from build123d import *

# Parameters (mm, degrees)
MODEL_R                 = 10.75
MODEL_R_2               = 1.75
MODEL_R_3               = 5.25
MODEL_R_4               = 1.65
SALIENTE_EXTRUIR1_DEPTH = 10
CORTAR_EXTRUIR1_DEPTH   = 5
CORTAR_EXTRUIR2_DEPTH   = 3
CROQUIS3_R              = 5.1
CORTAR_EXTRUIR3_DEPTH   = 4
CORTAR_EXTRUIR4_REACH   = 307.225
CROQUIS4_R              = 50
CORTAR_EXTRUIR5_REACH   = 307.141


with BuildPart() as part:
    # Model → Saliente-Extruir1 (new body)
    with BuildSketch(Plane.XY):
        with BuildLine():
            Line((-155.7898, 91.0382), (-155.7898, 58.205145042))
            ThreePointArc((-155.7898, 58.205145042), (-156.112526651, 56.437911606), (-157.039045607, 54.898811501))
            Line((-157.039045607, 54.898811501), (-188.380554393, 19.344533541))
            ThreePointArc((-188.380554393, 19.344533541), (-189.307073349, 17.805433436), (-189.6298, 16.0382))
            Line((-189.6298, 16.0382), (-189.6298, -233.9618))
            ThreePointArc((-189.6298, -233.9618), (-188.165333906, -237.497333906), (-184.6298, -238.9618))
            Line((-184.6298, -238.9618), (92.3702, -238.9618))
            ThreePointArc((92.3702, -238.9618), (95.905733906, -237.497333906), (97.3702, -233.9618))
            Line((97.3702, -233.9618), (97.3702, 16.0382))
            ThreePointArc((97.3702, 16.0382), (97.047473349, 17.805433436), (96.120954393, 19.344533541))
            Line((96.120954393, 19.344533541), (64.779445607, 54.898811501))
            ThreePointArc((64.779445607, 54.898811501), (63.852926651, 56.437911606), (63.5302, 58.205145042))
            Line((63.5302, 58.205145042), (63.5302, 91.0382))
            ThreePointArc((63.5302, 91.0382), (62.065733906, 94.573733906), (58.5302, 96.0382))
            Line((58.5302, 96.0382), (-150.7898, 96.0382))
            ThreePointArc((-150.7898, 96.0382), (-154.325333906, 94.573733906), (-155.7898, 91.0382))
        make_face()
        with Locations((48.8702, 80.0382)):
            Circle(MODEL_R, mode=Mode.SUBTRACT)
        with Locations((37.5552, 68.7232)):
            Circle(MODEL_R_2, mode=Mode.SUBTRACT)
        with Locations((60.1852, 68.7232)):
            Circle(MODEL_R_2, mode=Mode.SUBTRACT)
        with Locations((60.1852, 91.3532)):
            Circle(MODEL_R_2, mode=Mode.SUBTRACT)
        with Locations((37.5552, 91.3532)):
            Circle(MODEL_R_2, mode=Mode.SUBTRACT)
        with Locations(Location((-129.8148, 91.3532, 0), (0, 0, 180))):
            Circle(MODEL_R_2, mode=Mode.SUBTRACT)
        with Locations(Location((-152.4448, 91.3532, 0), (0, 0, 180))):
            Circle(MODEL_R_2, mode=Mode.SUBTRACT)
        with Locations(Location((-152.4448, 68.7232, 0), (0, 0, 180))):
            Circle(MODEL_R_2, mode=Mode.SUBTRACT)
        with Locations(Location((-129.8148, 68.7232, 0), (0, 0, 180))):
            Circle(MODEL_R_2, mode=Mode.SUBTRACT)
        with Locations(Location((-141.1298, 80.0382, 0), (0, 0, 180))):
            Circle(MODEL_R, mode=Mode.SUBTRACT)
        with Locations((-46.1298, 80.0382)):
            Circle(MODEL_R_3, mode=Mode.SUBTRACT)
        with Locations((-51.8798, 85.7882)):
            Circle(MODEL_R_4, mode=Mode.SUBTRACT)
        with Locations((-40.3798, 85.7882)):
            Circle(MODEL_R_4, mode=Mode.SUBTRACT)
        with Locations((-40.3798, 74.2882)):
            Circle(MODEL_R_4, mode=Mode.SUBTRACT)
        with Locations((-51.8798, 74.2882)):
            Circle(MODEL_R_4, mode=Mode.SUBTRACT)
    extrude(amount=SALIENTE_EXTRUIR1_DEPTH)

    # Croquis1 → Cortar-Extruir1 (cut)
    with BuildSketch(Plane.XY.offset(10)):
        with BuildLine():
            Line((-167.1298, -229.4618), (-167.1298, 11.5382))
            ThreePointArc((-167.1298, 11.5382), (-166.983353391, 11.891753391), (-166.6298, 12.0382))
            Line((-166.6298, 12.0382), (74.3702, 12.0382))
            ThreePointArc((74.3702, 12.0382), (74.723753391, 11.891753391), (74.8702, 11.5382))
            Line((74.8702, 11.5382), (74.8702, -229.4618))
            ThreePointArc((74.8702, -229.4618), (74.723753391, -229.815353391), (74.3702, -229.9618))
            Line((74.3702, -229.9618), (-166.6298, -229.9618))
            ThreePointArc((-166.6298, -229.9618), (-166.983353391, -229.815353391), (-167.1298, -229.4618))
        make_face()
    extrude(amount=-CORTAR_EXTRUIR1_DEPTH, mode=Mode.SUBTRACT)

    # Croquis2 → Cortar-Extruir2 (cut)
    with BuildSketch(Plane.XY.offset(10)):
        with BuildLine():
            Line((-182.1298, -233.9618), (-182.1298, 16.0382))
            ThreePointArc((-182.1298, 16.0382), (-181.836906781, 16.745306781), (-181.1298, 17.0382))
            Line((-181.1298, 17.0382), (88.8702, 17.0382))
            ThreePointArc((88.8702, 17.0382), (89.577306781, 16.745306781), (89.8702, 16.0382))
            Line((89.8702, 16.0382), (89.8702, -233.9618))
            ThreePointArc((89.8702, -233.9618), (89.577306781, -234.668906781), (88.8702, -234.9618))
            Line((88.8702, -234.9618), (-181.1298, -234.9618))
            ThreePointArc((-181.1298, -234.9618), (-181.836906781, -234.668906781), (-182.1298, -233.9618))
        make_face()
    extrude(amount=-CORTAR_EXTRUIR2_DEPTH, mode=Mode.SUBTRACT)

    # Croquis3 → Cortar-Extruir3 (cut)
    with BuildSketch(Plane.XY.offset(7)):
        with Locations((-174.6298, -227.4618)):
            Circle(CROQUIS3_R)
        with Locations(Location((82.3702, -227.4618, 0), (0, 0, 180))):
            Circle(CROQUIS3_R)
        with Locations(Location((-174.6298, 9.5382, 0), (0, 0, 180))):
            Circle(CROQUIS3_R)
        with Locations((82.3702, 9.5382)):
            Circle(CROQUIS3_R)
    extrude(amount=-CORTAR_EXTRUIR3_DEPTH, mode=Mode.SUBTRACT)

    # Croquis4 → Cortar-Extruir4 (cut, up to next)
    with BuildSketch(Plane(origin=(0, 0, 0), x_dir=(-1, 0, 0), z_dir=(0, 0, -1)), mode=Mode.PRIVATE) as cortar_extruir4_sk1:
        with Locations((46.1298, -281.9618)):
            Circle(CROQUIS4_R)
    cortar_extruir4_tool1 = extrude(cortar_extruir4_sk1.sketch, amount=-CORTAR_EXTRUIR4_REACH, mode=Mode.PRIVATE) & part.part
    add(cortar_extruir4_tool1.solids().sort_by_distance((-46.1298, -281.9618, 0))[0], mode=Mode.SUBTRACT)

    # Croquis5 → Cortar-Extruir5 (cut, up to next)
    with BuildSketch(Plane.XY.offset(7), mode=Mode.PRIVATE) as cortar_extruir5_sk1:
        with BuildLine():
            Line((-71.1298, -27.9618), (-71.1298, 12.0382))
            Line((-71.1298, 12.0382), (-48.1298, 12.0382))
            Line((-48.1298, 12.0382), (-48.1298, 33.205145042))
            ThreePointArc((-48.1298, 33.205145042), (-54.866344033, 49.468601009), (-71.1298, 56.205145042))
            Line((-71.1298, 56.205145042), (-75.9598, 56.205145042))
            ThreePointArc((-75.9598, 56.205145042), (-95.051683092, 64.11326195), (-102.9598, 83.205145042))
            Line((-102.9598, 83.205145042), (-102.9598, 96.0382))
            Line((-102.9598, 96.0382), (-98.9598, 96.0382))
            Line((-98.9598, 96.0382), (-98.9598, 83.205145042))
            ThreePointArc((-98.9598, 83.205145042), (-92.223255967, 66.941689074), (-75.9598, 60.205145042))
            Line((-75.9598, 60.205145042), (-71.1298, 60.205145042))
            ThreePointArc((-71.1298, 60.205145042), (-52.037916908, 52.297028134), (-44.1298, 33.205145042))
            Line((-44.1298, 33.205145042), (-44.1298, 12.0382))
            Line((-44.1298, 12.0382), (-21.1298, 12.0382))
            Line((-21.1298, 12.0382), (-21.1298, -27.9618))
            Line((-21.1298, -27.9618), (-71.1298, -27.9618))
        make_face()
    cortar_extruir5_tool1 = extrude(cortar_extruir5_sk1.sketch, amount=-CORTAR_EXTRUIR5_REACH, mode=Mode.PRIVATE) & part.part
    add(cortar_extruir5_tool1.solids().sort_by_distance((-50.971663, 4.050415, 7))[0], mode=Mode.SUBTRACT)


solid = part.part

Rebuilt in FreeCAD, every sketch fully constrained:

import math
import FreeCAD as App
import Part
import Sketcher
from FreeCAD import Vector

doc = App.newDocument("Part")
body = doc.addObject("PartDesign::Body", "Body")

# Sketch on XY plane
sketch1 = doc.addObject("Sketcher::SketchObject", "Sketch")
body.addObject(sketch1)
sketch1.AttachmentSupport = (doc.XY_Plane, [""])
sketch1.MapMode = "FlatFace"
sketch1.addGeometry([
    Part.LineSegment(Vector(-155.7898, 91.0382, 0), Vector(-155.7898, 58.205145, 0)),  # 0
    Part.ArcOfCircle(Part.Circle(Vector(-160.7898, 58.205145, 0), Vector(0, 0, 1), 5), math.radians(-41.396551), math.radians(0)),  # 1
    Part.LineSegment(Vector(-157.039046, 54.898812, 0), Vector(-188.380554, 19.344534, 0)),  # 2
    Part.ArcOfCircle(Part.Circle(Vector(-184.6298, 16.0382, 0), Vector(0, 0, 1), 5), math.radians(138.603449), math.radians(180)),  # 3
    Part.LineSegment(Vector(-189.6298, 16.0382, 0), Vector(-189.6298, -233.9618, 0)),  # 4
    Part.ArcOfCircle(Part.Circle(Vector(-184.6298, -233.9618, 0), Vector(0, 0, 1), 5), math.radians(180), math.radians(270)),  # 5
    Part.LineSegment(Vector(-184.6298, -238.9618, 0), Vector(92.3702, -238.9618, 0)),  # 6
    Part.ArcOfCircle(Part.Circle(Vector(92.3702, -233.9618, 0), Vector(0, 0, 1), 5), math.radians(-90), math.radians(0)),  # 7
    Part.LineSegment(Vector(97.3702, -233.9618, 0), Vector(97.3702, 16.0382, 0)),  # 8
    Part.ArcOfCircle(Part.Circle(Vector(92.3702, 16.0382, 0), Vector(0, 0, 1), 5), math.radians(0), math.radians(41.396551)),  # 9
    Part.LineSegment(Vector(96.120954, 19.344534, 0), Vector(64.779446, 54.898812, 0)),  # 10
    Part.ArcOfCircle(Part.Circle(Vector(68.5302, 58.205145, 0), Vector(0, 0, 1), 5), math.radians(-180), math.radians(-138.603449)),  # 11
    Part.LineSegment(Vector(63.5302, 58.205145, 0), Vector(63.5302, 91.0382, 0)),  # 12
    Part.ArcOfCircle(Part.Circle(Vector(58.5302, 91.0382, 0), Vector(0, 0, 1), 5), math.radians(0), math.radians(90)),  # 13
    Part.LineSegment(Vector(58.5302, 96.0382, 0), Vector(-150.7898, 96.0382, 0)),  # 14
    Part.ArcOfCircle(Part.Circle(Vector(-150.7898, 91.0382, 0), Vector(0, 0, 1), 5), math.radians(90), math.radians(180)),  # 15
    Part.Circle(Vector(-152.4448, 68.7232, 0), Vector(0, 0, 1), 1.75),  # 16
    Part.Circle(Vector(-129.8148, 68.7232, 0), Vector(0, 0, 1), 1.75),  # 17
    Part.Circle(Vector(-141.1298, 80.0382, 0), Vector(0, 0, 1), 10.75),  # 18
    Part.Circle(Vector(-51.8798, 74.2882, 0), Vector(0, 0, 1), 1.65),  # 19
    Part.Circle(Vector(-46.1298, 80.0382, 0), Vector(0, 0, 1), 5.25),  # 20
    Part.Circle(Vector(37.5552, 68.7232, 0), Vector(0, 0, 1), 1.75),  # 21
    Part.Circle(Vector(60.1852, 68.7232, 0), Vector(0, 0, 1), 1.75),  # 22
    Part.Circle(Vector(-40.3798, 74.2882, 0), Vector(0, 0, 1), 1.65),  # 23
    Part.Circle(Vector(48.8702, 80.0382, 0), Vector(0, 0, 1), 10.75),  # 24
    Part.Circle(Vector(-51.8798, 85.7882, 0), Vector(0, 0, 1), 1.65),  # 25
    Part.Circle(Vector(-152.4448, 91.3532, 0), Vector(0, 0, 1), 1.75),  # 26
    Part.Circle(Vector(-129.8148, 91.3532, 0), Vector(0, 0, 1), 1.75),  # 27
    Part.Circle(Vector(-40.3798, 85.7882, 0), Vector(0, 0, 1), 1.65),  # 28
    Part.Circle(Vector(37.5552, 91.3532, 0), Vector(0, 0, 1), 1.75),  # 29
    Part.Circle(Vector(60.1852, 91.3532, 0), Vector(0, 0, 1), 1.75),  # 30
], False)
sketch1.addConstraint([
    Sketcher.Constraint("Tangent", 0, 2, 1, 2),
    Sketcher.Constraint("Tangent", 1, 1, 2, 1),
    Sketcher.Constraint("Tangent", 2, 2, 3, 1),
    Sketcher.Constraint("Tangent", 3, 2, 4, 1),
    Sketcher.Constraint("Tangent", 4, 2, 5, 1),
    Sketcher.Constraint("Tangent", 5, 2, 6, 1),
    Sketcher.Constraint("Tangent", 6, 2, 7, 1),
    Sketcher.Constraint("Tangent", 7, 2, 8, 1),
    Sketcher.Constraint("Tangent", 8, 2, 9, 1),
    Sketcher.Constraint("Tangent", 9, 2, 10, 1),
    Sketcher.Constraint("Tangent", 10, 2, 11, 2),
    Sketcher.Constraint("Tangent", 11, 1, 12, 1),
    Sketcher.Constraint("Tangent", 12, 2, 13, 1),
    Sketcher.Constraint("Tangent", 13, 2, 14, 1),
    Sketcher.Constraint("Tangent", 14, 2, 15, 1),
    Sketcher.Constraint("Tangent", 15, 2, 0, 1),
    Sketcher.Constraint("Vertical", 0),
    Sketcher.Constraint("Vertical", 4),
    Sketcher.Constraint("Horizontal", 6),
    Sketcher.Constraint("Vertical", 8),
    Sketcher.Constraint("Vertical", 12),
    Sketcher.Constraint("Horizontal", 14),
    Sketcher.Constraint("Equal", 1, 3),
    Sketcher.Constraint("Equal", 3, 5),
    Sketcher.Constraint("Equal", 5, 7),
    Sketcher.Constraint("Equal", 7, 9),
    Sketcher.Constraint("Equal", 9, 11),
    Sketcher.Constraint("Equal", 11, 13),
    Sketcher.Constraint("Equal", 13, 15),
    Sketcher.Constraint("Equal", 16, 17),
    Sketcher.Constraint("Equal", 17, 21),
    Sketcher.Constraint("Equal", 21, 22),
    Sketcher.Constraint("Equal", 19, 23),
    Sketcher.Constraint("Equal", 18, 24),
    Sketcher.Constraint("Equal", 23, 25),
    Sketcher.Constraint("Equal", 22, 26),
    Sketcher.Constraint("Equal", 26, 27),
    Sketcher.Constraint("Equal", 25, 28),
    Sketcher.Constraint("Equal", 27, 29),
    Sketcher.Constraint("Equal", 29, 30),
    Sketcher.Constraint("Horizontal", 3, 3, 9, 3),
    Sketcher.Constraint("Horizontal", 1, 3, 11, 3),
    Sketcher.Constraint("Horizontal", 16, 3, 17, 3),
    Sketcher.Constraint("Horizontal", 18, 3, 20, 3),
    Sketcher.Constraint("Horizontal", 17, 3, 21, 3),
    Sketcher.Constraint("Horizontal", 21, 3, 22, 3),
    Sketcher.Constraint("Horizontal", 19, 3, 23, 3),
    Sketcher.Constraint("Horizontal", 20, 3, 24, 3),
    Sketcher.Constraint("Horizontal", 26, 3, 27, 3),
    Sketcher.Constraint("Horizontal", 25, 3, 28, 3),
    Sketcher.Constraint("Horizontal", 27, 3, 29, 3),
    Sketcher.Constraint("Horizontal", 29, 3, 30, 3),
    Sketcher.Constraint("Horizontal", 2, 2, 9, 2),
    Sketcher.Constraint("Vertical", 19, 3, 25, 3),
    Sketcher.Constraint("Vertical", 16, 3, 26, 3),
    Sketcher.Constraint("Vertical", 17, 3, 27, 3),
    Sketcher.Constraint("Vertical", 23, 3, 28, 3),
    Sketcher.Constraint("Vertical", 21, 3, 29, 3),
    Sketcher.Constraint("Vertical", 22, 3, 30, 3),
    Sketcher.Constraint("Radius", 1, 5.0),
    Sketcher.Constraint("Diameter", 16, 3.5),
    Sketcher.Constraint("Diameter", 18, 21.5),
    Sketcher.Constraint("Diameter", 19, 3.3),
    Sketcher.Constraint("Diameter", 20, 10.5),
    Sketcher.Constraint("DistanceX", 6, 1, 6, 2, 277.0),
    Sketcher.Constraint("DistanceY", 4, 2, 4, 1, 250.0),
    Sketcher.Constraint("DistanceY", 9, 3, 13, 3, 75.0),
    Sketcher.Constraint("DistanceY", 18, 3, 15, 3, 11.0),
    Sketcher.Constraint("DistanceX", 18, 3, 20, 3, 95.0),
    Sketcher.Constraint("DistanceX", 14, 2, 14, 1, 209.32),
    Sketcher.Constraint("DistanceX", 3, 3, 18, 3, 43.5),
    Sketcher.Constraint("DistanceX", 19, 3, 23, 3, 11.5),
    Sketcher.Constraint("DistanceX", 24, 3, 9, 3, 43.5),
    Sketcher.Constraint("DistanceY", 19, 3, 25, 3, 11.5),
    Sketcher.Constraint("DistanceX", 16, 3, 17, 3, 22.63),
    Sketcher.Constraint("DistanceX", 18, 3, 19, 3, 89.25),
    Sketcher.Constraint("DistanceY", 19, 3, 18, 3, 5.75),
    Sketcher.Constraint("DistanceX", 21, 3, 22, 3, 22.63),
    Sketcher.Constraint("DistanceY", 16, 3, 26, 3, 22.63),
    Sketcher.Constraint("DistanceX", 1, 3, 16, 3, 8.345),
    Sketcher.Constraint("DistanceY", 16, 3, 15, 3, 22.315),
    Sketcher.Constraint("DistanceX", 21, 3, 13, 3, 20.975),
    Sketcher.Constraint("DistanceX", 1, 3, -1, 1, 160.7898),
    Sketcher.Constraint("DistanceY", -1, 1, 3, 3, 16.0382),
    Sketcher.Constraint("Distance", 2, 47.396169),
])
pad1 = doc.addObject("PartDesign::Pad", "Pad")
body.addObject(pad1)
pad1.Profile = sketch1
pad1.Length = 10

# Sketch on XY plane
sketch2 = doc.addObject("Sketcher::SketchObject", "Sketch001")
body.addObject(sketch2)
sketch2.AttachmentSupport = (doc.XY_Plane, [""])
sketch2.MapMode = "FlatFace"
sketch2.AttachmentOffset = App.Placement(Vector(0, 0, 10), App.Rotation())
sketch2.addGeometry([
    Part.LineSegment(Vector(-167.1298, 11.5382, 0), Vector(-167.1298, -229.4618, 0)),  # 0
    Part.ArcOfCircle(Part.Circle(Vector(-166.6298, -229.4618, 0), Vector(0, 0, 1), 0.5), math.radians(180), math.radians(270)),  # 1
    Part.LineSegment(Vector(-166.6298, -229.9618, 0), Vector(74.3702, -229.9618, 0)),  # 2
    Part.ArcOfCircle(Part.Circle(Vector(74.3702, -229.4618, 0), Vector(0, 0, 1), 0.5), math.radians(-90), math.radians(0)),  # 3
    Part.LineSegment(Vector(74.8702, -229.4618, 0), Vector(74.8702, 11.5382, 0)),  # 4
    Part.ArcOfCircle(Part.Circle(Vector(74.3702, 11.5382, 0), Vector(0, 0, 1), 0.5), math.radians(0), math.radians(90)),  # 5
    Part.LineSegment(Vector(74.3702, 12.0382, 0), Vector(-166.6298, 12.0382, 0)),  # 6
    Part.ArcOfCircle(Part.Circle(Vector(-166.6298, 11.5382, 0), Vector(0, 0, 1), 0.5), math.radians(90), math.radians(180)),  # 7
], False)
sketch2.addConstraint([
    Sketcher.Constraint("Tangent", 0, 2, 1, 1),
    Sketcher.Constraint("Tangent", 1, 2, 2, 1),
    Sketcher.Constraint("Tangent", 2, 2, 3, 1),
    Sketcher.Constraint("Tangent", 3, 2, 4, 1),
    Sketcher.Constraint("Tangent", 4, 2, 5, 1),
    Sketcher.Constraint("Tangent", 5, 2, 6, 1),
    Sketcher.Constraint("Tangent", 6, 2, 7, 1),
    Sketcher.Constraint("Tangent", 7, 2, 0, 1),
    Sketcher.Constraint("Vertical", 0),
    Sketcher.Constraint("Horizontal", 2),
    Sketcher.Constraint("Vertical", 4),
    Sketcher.Constraint("Horizontal", 6),
    Sketcher.Constraint("Equal", 1, 3),
    Sketcher.Constraint("Equal", 3, 5),
    Sketcher.Constraint("Equal", 5, 7),
    Sketcher.Constraint("Equal", 6, 0),
    Sketcher.Constraint("Radius", 1, 0.5),
    Sketcher.Constraint("DistanceX", 2, 1, 2, 2, 241.0),
    Sketcher.Constraint("DistanceX", 1, 3, -1, 1, 166.6298),
    Sketcher.Constraint("DistanceY", 1, 3, -1, 1, 229.4618),
])
pocket1 = doc.addObject("PartDesign::Pocket", "Pocket")
body.addObject(pocket1)
pocket1.Profile = sketch2
pocket1.Length = 5

# Sketch on XY plane
sketch3 = doc.addObject("Sketcher::SketchObject", "Sketch002")
body.addObject(sketch3)
sketch3.AttachmentSupport = (doc.XY_Plane, [""])
sketch3.MapMode = "FlatFace"
sketch3.AttachmentOffset = App.Placement(Vector(0, 0, 10), App.Rotation())
sketch3.addGeometry([
    Part.LineSegment(Vector(-182.1298, 16.0382, 0), Vector(-182.1298, -233.9618, 0)),  # 0
    Part.ArcOfCircle(Part.Circle(Vector(-181.1298, -233.9618, 0), Vector(0, 0, 1), 1), math.radians(-180), math.radians(-90)),  # 1
    Part.LineSegment(Vector(-181.1298, -234.9618, 0), Vector(88.8702, -234.9618, 0)),  # 2
    Part.ArcOfCircle(Part.Circle(Vector(88.8702, -233.9618, 0), Vector(0, 0, 1), 1), math.radians(-90), math.radians(0)),  # 3
    Part.LineSegment(Vector(89.8702, -233.9618, 0), Vector(89.8702, 16.0382, 0)),  # 4
    Part.ArcOfCircle(Part.Circle(Vector(88.8702, 16.0382, 0), Vector(0, 0, 1), 1), math.radians(0), math.radians(90)),  # 5
    Part.LineSegment(Vector(88.8702, 17.0382, 0), Vector(-181.1298, 17.0382, 0)),  # 6
    Part.ArcOfCircle(Part.Circle(Vector(-181.1298, 16.0382, 0), Vector(0, 0, 1), 1), math.radians(90), math.radians(180)),  # 7
], False)
sketch3.addConstraint([
    Sketcher.Constraint("Tangent", 0, 2, 1, 1),
    Sketcher.Constraint("Tangent", 1, 2, 2, 1),
    Sketcher.Constraint("Tangent", 2, 2, 3, 1),
    Sketcher.Constraint("Tangent", 3, 2, 4, 1),
    Sketcher.Constraint("Tangent", 4, 2, 5, 1),
    Sketcher.Constraint("Tangent", 5, 2, 6, 1),
    Sketcher.Constraint("Tangent", 6, 2, 7, 1),
    Sketcher.Constraint("Tangent", 7, 2, 0, 1),
    Sketcher.Constraint("Vertical", 0),
    Sketcher.Constraint("Horizontal", 2),
    Sketcher.Constraint("Vertical", 4),
    Sketcher.Constraint("Horizontal", 6),
    Sketcher.Constraint("Equal", 1, 3),
    Sketcher.Constraint("Equal", 3, 5),
    Sketcher.Constraint("Equal", 5, 7),
    Sketcher.Constraint("Radius", 1, 1.0),
    Sketcher.Constraint("DistanceX", 2, 1, 2, 2, 270.0),
    Sketcher.Constraint("DistanceY", 0, 2, 0, 1, 250.0),
    Sketcher.Constraint("DistanceX", 1, 3, -1, 1, 181.1298),
    Sketcher.Constraint("DistanceY", 1, 3, -1, 1, 233.9618),
])
pocket2 = doc.addObject("PartDesign::Pocket", "Pocket001")
body.addObject(pocket2)
pocket2.Profile = sketch3
pocket2.Length = 3

# Sketch on XY plane
sketch4 = doc.addObject("Sketcher::SketchObject", "Sketch003")
body.addObject(sketch4)
sketch4.AttachmentSupport = (doc.XY_Plane, [""])
sketch4.MapMode = "FlatFace"
sketch4.AttachmentOffset = App.Placement(Vector(0, 0, 7), App.Rotation())
sketch4.addGeometry([
    Part.Circle(Vector(-174.6298, -227.4618, 0), Vector(0, 0, 1), 5.1),
    Part.Circle(Vector(82.3702, -227.4618, 0), Vector(0, 0, 1), 5.1),
    Part.Circle(Vector(-174.6298, 9.5382, 0), Vector(0, 0, 1), 5.1),
    Part.Circle(Vector(82.3702, 9.5382, 0), Vector(0, 0, 1), 5.1),
], False)
sketch4.addConstraint([
    Sketcher.Constraint("Equal", 0, 1),
    Sketcher.Constraint("Equal", 1, 2),
    Sketcher.Constraint("Equal", 2, 3),
    Sketcher.Constraint("Horizontal", 0, 3, 1, 3),
    Sketcher.Constraint("Horizontal", 2, 3, 3, 3),
    Sketcher.Constraint("Vertical", 0, 3, 2, 3),
    Sketcher.Constraint("Vertical", 1, 3, 3, 3),
    Sketcher.Constraint("Diameter", 0, 10.2),
    Sketcher.Constraint("DistanceX", 0, 3, 1, 3, 257.0),
    Sketcher.Constraint("DistanceY", 0, 3, 2, 3, 237.0),
    Sketcher.Constraint("DistanceX", 0, 3, -1, 1, 174.6298),
    Sketcher.Constraint("DistanceY", 0, 3, -1, 1, 227.4618),
])
pocket3 = doc.addObject("PartDesign::Pocket", "Pocket002")
body.addObject(pocket3)
pocket3.Profile = sketch4
pocket3.Length = 4

# Sketch on XY plane
sketch5 = doc.addObject("Sketcher::SketchObject", "Sketch004")
body.addObject(sketch5)
sketch5.AttachmentSupport = (doc.XY_Plane, [""])
sketch5.MapMode = "FlatFace"
sketch5.addGeometry(Part.Circle(Vector(-46.1298, -281.9618, 0), Vector(0, 0, 1), 50), False)
sketch5.addConstraint([
    Sketcher.Constraint("Diameter", 0, 100.0),
    Sketcher.Constraint("DistanceX", 0, 3, -1, 1, 46.1298),
    Sketcher.Constraint("DistanceY", 0, 3, -1, 1, 281.9618),
])
pocket4 = doc.addObject("PartDesign::Pocket", "Pocket003")
body.addObject(pocket4)
pocket4.Profile = sketch5
pocket4.Length = 10
pocket4.Reversed = True

# Sketch on XY plane
sketch6 = doc.addObject("Sketcher::SketchObject", "Sketch005")
body.addObject(sketch6)
sketch6.AttachmentSupport = (doc.XY_Plane, [""])
sketch6.MapMode = "FlatFace"
sketch6.AttachmentOffset = App.Placement(Vector(0, 0, 7), App.Rotation())
sketch6.addGeometry([
    Part.LineSegment(Vector(-71.1298, 12.0382, 0), Vector(-71.1298, -27.9618, 0)),  # 0
    Part.LineSegment(Vector(-71.1298, -27.9618, 0), Vector(-21.1298, -27.9618, 0)),  # 1
    Part.LineSegment(Vector(-21.1298, -27.9618, 0), Vector(-21.1298, 12.0382, 0)),  # 2
    Part.LineSegment(Vector(-21.1298, 12.0382, 0), Vector(-44.1298, 12.0382, 0)),  # 3
    Part.LineSegment(Vector(-44.1298, 12.0382, 0), Vector(-44.1298, 33.205145, 0)),  # 4
    Part.ArcOfCircle(Part.Circle(Vector(-71.1298, 33.205145, 0), Vector(0, 0, 1), 27), math.radians(0), math.radians(90)),  # 5
    Part.LineSegment(Vector(-71.1298, 60.205145, 0), Vector(-75.9598, 60.205145, 0)),  # 6
    Part.ArcOfCircle(Part.Circle(Vector(-75.9598, 83.205145, 0), Vector(0, 0, 1), 23), math.radians(180), math.radians(270)),  # 7
    Part.LineSegment(Vector(-98.9598, 83.205145, 0), Vector(-98.9598, 96.0382, 0)),  # 8
    Part.LineSegment(Vector(-98.9598, 96.0382, 0), Vector(-102.9598, 96.0382, 0)),  # 9
    Part.LineSegment(Vector(-102.9598, 96.0382, 0), Vector(-102.9598, 83.205145, 0)),  # 10
    Part.ArcOfCircle(Part.Circle(Vector(-75.9598, 83.205145, 0), Vector(0, 0, 1), 27), math.radians(180), math.radians(270)),  # 11
    Part.LineSegment(Vector(-75.9598, 56.205145, 0), Vector(-71.1298, 56.205145, 0)),  # 12
    Part.ArcOfCircle(Part.Circle(Vector(-71.1298, 33.205145, 0), Vector(0, 0, 1), 23), math.radians(0), math.radians(90)),  # 13
    Part.LineSegment(Vector(-48.1298, 33.205145, 0), Vector(-48.1298, 12.0382, 0)),  # 14
    Part.LineSegment(Vector(-48.1298, 12.0382, 0), Vector(-71.1298, 12.0382, 0)),  # 15
], False)
sketch6.addConstraint([
    Sketcher.Constraint("Coincident", 0, 2, 1, 1),
    Sketcher.Constraint("Coincident", 1, 2, 2, 1),
    Sketcher.Constraint("Coincident", 2, 2, 3, 1),
    Sketcher.Constraint("Coincident", 3, 2, 4, 1),
    Sketcher.Constraint("Tangent", 4, 2, 5, 1),
    Sketcher.Constraint("Tangent", 5, 2, 6, 1),
    Sketcher.Constraint("Tangent", 6, 2, 7, 2),
    Sketcher.Constraint("Tangent", 7, 1, 8, 1),
    Sketcher.Constraint("Coincident", 8, 2, 9, 1),
    Sketcher.Constraint("Coincident", 9, 2, 10, 1),
    Sketcher.Constraint("Tangent", 10, 2, 11, 1),
    Sketcher.Constraint("Tangent", 11, 2, 12, 1),
    Sketcher.Constraint("Tangent", 12, 2, 13, 2),
    Sketcher.Constraint("Tangent", 13, 1, 14, 1),
    Sketcher.Constraint("Coincident", 14, 2, 15, 1),
    Sketcher.Constraint("Coincident", 15, 2, 0, 1),
    Sketcher.Constraint("Vertical", 0),
    Sketcher.Constraint("Horizontal", 1),
    Sketcher.Constraint("Vertical", 2),
    Sketcher.Constraint("Horizontal", 3),
    Sketcher.Constraint("Vertical", 4),
    Sketcher.Constraint("Horizontal", 6),
    Sketcher.Constraint("Vertical", 8),
    Sketcher.Constraint("Horizontal", 9),
    Sketcher.Constraint("Vertical", 10),
    Sketcher.Constraint("Horizontal", 12),
    Sketcher.Constraint("Vertical", 14),
    Sketcher.Constraint("Horizontal", 15),
    Sketcher.Constraint("Coincident", 11, 3, 7, 3),
    Sketcher.Constraint("Coincident", 13, 3, 5, 3),
    Sketcher.Constraint("Equal", 5, 11),
    Sketcher.Constraint("Horizontal", 3, 2, 14, 2),
    Sketcher.Constraint("Vertical", 13, 3, 0, 2),
    Sketcher.Constraint("Equal", 3, 15),
    Sketcher.Constraint("Radius", 5, 27.0),
    Sketcher.Constraint("Radius", 7, 23.0),
    Sketcher.Constraint("DistanceY", 0, 2, 0, 1, 40.0),
    Sketcher.Constraint("DistanceX", 6, 2, 6, 1, 4.83),
    Sketcher.Constraint("DistanceX", 5, 3, -1, 1, 71.1298),
    Sketcher.Constraint("DistanceY", 0, 2, -1, 1, 27.9618),
    Sketcher.Constraint("DistanceY", -1, 1, 8, 2, 96.0382),
    Sketcher.Constraint("DistanceY", 4, 1, 4, 2, 21.166945),
])
pocket5 = doc.addObject("PartDesign::Pocket", "Pocket004")
body.addObject(pocket5)
pocket5.Profile = sketch6
pocket5.Length = 7

doc.recompute()
